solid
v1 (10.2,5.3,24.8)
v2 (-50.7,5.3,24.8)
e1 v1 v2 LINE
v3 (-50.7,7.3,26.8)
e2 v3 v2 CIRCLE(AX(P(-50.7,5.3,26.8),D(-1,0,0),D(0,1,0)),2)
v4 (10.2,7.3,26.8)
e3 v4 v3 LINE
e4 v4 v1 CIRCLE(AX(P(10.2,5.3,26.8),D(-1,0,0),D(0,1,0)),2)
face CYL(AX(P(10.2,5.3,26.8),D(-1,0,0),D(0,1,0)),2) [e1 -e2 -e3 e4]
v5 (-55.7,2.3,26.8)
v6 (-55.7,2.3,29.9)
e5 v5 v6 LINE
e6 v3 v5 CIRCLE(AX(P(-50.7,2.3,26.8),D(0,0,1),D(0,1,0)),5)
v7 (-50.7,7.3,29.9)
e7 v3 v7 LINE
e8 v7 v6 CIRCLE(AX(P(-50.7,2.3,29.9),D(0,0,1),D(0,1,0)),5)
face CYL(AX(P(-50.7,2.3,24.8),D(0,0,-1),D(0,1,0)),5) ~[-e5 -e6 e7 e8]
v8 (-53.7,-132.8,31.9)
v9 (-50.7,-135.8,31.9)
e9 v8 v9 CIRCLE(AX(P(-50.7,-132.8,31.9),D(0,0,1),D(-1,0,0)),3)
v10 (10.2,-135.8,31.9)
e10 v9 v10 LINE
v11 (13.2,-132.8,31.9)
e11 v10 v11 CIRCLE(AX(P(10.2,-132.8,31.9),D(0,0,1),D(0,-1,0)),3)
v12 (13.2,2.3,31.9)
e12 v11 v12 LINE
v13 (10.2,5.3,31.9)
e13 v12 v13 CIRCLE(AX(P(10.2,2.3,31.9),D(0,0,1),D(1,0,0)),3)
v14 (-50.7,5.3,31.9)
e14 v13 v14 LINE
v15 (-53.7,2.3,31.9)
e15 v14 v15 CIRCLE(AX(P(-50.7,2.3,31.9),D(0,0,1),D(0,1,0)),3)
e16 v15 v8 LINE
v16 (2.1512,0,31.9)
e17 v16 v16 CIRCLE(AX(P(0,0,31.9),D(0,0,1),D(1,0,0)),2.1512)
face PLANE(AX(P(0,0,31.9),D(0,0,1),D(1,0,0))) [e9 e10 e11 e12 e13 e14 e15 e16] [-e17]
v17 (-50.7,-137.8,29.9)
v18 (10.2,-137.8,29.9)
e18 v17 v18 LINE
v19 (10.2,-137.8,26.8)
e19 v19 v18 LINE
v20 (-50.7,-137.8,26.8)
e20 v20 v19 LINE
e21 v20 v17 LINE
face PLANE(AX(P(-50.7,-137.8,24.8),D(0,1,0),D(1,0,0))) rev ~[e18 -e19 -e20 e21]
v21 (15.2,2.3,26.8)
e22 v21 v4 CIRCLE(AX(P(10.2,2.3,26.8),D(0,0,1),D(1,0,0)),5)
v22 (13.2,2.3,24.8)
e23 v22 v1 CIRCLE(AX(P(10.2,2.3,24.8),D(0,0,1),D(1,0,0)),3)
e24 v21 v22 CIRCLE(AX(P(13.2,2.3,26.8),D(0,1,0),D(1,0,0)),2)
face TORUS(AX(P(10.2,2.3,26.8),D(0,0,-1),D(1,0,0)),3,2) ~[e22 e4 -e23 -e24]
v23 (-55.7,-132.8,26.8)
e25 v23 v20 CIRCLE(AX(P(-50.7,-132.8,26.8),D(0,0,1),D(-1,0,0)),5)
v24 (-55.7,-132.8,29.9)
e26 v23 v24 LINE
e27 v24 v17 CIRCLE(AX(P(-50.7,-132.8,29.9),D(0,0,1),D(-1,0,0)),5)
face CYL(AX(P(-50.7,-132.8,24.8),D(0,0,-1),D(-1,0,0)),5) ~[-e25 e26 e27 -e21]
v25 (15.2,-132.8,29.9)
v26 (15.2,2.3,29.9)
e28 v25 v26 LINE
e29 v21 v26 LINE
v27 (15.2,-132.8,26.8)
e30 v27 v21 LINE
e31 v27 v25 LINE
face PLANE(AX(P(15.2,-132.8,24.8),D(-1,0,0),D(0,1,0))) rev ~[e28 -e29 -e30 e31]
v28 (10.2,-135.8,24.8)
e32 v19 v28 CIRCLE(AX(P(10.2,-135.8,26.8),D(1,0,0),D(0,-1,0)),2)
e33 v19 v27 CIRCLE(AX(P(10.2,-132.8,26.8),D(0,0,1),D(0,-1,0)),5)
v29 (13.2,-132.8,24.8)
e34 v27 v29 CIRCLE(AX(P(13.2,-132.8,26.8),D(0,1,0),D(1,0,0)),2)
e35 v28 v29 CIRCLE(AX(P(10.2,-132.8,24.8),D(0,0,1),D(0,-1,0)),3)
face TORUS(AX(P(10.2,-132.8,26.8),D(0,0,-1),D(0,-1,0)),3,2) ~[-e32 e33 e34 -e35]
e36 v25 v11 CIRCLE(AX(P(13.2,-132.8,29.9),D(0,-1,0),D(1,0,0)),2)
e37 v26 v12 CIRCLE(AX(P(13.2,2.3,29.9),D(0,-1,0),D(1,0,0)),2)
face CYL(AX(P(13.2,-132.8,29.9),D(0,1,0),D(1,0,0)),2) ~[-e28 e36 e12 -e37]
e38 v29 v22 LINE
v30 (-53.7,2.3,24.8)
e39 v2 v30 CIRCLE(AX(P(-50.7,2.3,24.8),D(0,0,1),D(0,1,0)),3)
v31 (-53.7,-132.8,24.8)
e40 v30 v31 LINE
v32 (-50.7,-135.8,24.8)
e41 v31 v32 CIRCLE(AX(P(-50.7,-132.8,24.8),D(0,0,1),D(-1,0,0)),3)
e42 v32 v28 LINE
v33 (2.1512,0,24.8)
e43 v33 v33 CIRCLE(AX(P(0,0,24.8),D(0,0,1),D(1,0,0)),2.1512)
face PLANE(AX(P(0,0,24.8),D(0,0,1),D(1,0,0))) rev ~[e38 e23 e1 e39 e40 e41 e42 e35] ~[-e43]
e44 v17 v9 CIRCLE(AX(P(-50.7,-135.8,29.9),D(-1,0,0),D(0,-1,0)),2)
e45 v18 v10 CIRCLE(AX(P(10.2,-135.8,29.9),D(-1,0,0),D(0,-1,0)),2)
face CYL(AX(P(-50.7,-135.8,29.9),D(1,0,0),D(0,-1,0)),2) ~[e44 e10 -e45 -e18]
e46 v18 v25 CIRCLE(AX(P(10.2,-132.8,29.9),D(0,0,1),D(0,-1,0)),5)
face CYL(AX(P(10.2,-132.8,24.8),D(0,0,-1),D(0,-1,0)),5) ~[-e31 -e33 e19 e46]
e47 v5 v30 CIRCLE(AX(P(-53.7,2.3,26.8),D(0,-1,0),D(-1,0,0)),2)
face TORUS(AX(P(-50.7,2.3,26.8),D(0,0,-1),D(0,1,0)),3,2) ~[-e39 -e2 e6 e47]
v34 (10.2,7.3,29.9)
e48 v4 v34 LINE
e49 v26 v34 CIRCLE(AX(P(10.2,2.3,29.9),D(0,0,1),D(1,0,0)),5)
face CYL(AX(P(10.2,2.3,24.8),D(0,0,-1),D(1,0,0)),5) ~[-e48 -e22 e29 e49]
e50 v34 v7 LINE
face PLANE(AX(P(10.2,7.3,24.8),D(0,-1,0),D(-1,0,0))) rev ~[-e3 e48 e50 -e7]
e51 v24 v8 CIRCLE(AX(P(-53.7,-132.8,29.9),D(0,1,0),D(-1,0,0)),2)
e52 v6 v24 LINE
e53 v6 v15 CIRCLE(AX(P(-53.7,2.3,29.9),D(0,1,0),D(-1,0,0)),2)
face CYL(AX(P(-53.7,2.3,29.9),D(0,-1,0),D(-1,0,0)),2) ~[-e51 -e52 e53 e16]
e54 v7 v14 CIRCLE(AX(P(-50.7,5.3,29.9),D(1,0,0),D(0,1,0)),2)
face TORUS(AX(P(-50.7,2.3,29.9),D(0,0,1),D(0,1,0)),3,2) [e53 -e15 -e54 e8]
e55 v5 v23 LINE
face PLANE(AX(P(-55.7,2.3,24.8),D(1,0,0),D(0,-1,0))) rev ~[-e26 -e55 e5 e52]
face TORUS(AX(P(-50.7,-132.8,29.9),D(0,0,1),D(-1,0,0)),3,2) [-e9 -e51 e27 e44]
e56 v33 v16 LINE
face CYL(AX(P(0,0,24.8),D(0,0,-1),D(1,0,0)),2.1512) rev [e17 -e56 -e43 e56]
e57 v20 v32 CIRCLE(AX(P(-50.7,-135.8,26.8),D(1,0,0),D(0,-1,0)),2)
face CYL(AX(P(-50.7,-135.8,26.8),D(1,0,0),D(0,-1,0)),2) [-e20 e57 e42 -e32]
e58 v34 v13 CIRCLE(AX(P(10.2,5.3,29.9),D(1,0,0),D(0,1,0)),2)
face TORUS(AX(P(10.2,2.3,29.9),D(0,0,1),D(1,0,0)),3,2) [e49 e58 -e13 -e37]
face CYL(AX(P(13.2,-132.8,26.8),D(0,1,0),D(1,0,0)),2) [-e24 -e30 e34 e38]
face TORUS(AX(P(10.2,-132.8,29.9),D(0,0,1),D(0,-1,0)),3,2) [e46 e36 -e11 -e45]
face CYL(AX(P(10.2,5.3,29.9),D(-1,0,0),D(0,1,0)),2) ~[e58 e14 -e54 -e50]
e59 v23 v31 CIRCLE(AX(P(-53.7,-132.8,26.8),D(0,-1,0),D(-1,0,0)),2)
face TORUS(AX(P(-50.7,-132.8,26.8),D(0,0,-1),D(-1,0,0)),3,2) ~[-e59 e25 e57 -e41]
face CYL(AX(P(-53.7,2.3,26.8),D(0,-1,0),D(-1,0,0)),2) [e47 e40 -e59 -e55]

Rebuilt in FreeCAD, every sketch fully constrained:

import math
import FreeCAD as App
import Part
import Sketcher
Q = App.Units.Quantity


def edges_at(feature, points):
    """Names of the edges that pass closest to the given points."""
    edges = feature.Shape.Edges
    near = lambda p: min(range(len(edges)), key=lambda i: edges[i].distToShape(Part.Vertex(*p))[0])
    return sorted({f"Edge{near(p) + 1}" for p in points})

doc = App.newDocument("Part")
params = doc.addObject("Spreadsheet::Sheet", "Params")
for row, (alias, value) in enumerate([
    ("sketch1_radius", "5 mm"),
    ("sketch1_height", "135.1 mm"),
    ("pad1_length", "7.1 mm"),
    ("fillet_radius", "2 mm"),
], start=1):
    params.set(f"A{row}", alias)
    params.set(f"B{row}", "=" + value)
    params.setAlias(f"B{row}", alias)

body = doc.addObject("PartDesign::Body", "Body")

sketch1 = body.newObject("Sketcher::SketchObject", "Sketch")
sketch1.AttachmentSupport = (doc.getObject("XY_Plane"), [""])
sketch1.MapMode = "FlatFace"
sketch1.AttachmentOffset = App.Placement(App.Vector(0, 0, 24.8), App.Rotation())
sketch1.addGeometry([
    Part.ArcOfCircle(Part.Circle(App.Vector(10.2, 2.3, 0), App.Vector(0, 0, 1), 5), math.radians(0), math.radians(90)),
    Part.LineSegment(App.Vector(10.2, 7.3, 0), App.Vector(-50.7, 7.3, 0)),
    Part.ArcOfCircle(Part.Circle(App.Vector(-50.7, 2.3, 0), App.Vector(0, 0, 1), 5), math.radians(90), math.radians(180)),
    Part.LineSegment(App.Vector(-55.7, 2.3, 0), App.Vector(-55.7, -132.8, 0)),
    Part.ArcOfCircle(Part.Circle(App.Vector(-50.7, -132.8, 0), App.Vector(0, 0, 1), 5), math.radians(180), math.radians(270)),
    Part.LineSegment(App.Vector(-50.7, -137.8, 0), App.Vector(10.2, -137.8, 0)),
    Part.ArcOfCircle(Part.Circle(App.Vector(10.2, -132.8, 0), App.Vector(0, 0, 1), 5), math.radians(-90), math.radians(0)),
    Part.LineSegment(App.Vector(15.2, -132.8, 0), App.Vector(15.2, 2.3, 0)),
    Part.Circle(App.Vector(0, 0, 0), App.Vector(0, 0, 1), 2.2),
], False)
sketch1.addConstraint([
    Sketcher.Constraint("Tangent", 0, 2, 1, 1),
    Sketcher.Constraint("Tangent", 1, 2, 2, 1),
    Sketcher.Constraint("Tangent", 2, 2, 3, 1),
    Sketcher.Constraint("Tangent", 3, 2, 4, 1),
    Sketcher.Constraint("Tangent", 4, 2, 5, 1),
    Sketcher.Constraint("Tangent", 5, 2, 6, 1),
    Sketcher.Constraint("Tangent", 6, 2, 7, 1),
    Sketcher.Constraint("Tangent", 7, 2, 0, 1),
    Sketcher.Constraint("Horizontal", 1),
    Sketcher.Constraint("Vertical", 3),
    Sketcher.Constraint("Horizontal", 5),
    Sketcher.Constraint("Vertical", 7),
    Sketcher.Constraint("Coincident", 8, 3, -1, 1),
    Sketcher.Constraint("Equal", 0, 2),
    Sketcher.Constraint("Equal", 2, 4),
    Sketcher.Constraint("Equal", 4, 6),
    Sketcher.Constraint("Radius", 0, Q("5 mm")),
    Sketcher.Constraint("DistanceY", -1, 1, 0, 2, Q("7.3 mm")),
    Sketcher.Constraint("DistanceX", -1, 1, 6, 2, Q("15.2 mm")),
    Sketcher.Constraint("DistanceX", 3, 2, 6, 2, Q("70.9 mm")),
    Sketcher.Constraint("DistanceY", 3, 2, 3, 1, Q("135.1 mm")),
    Sketcher.Constraint("Diameter", 8, Q("4.3024 mm")),
])
sketch1.setExpression("Constraints[16]", "Params.sketch1_radius")
sketch1.setExpression("Constraints[20]", "Params.sketch1_height")
pad1 = body.newObject("PartDesign::Pad", "Pad")
pad1.Profile = sketch1
pad1.setExpression("Length", "Params.pad1_length")
doc.recompute()

fillet = body.newObject("PartDesign::Fillet", "Fillet")
fillet.Base = (pad1, edges_at(pad1, [
    (13.736, 5.835, 31.9),
    (-20.25, 7.3, 31.9),
    (-54.236, 5.835, 31.9),
    (-55.7, -65.25, 31.9),
    (-54.236, -136.335, 31.9),
    (-20.25, -137.8, 31.9),
    (13.736, -136.335, 31.9),
    (15.2, -65.25, 31.9),
    (-54.236, 5.835, 24.8),
    (-55.7, -65.25, 24.8),
    (-54.236, -136.335, 24.8),
    (-20.25, -137.8, 24.8),
    (13.736, -136.335, 24.8),
    (15.2, -65.25, 24.8),
    (13.736, 5.835, 24.8),
    (-20.25, 7.3, 24.8),
]))
fillet.setExpression("Radius", "Params.fillet_radius")

doc.recompute()
